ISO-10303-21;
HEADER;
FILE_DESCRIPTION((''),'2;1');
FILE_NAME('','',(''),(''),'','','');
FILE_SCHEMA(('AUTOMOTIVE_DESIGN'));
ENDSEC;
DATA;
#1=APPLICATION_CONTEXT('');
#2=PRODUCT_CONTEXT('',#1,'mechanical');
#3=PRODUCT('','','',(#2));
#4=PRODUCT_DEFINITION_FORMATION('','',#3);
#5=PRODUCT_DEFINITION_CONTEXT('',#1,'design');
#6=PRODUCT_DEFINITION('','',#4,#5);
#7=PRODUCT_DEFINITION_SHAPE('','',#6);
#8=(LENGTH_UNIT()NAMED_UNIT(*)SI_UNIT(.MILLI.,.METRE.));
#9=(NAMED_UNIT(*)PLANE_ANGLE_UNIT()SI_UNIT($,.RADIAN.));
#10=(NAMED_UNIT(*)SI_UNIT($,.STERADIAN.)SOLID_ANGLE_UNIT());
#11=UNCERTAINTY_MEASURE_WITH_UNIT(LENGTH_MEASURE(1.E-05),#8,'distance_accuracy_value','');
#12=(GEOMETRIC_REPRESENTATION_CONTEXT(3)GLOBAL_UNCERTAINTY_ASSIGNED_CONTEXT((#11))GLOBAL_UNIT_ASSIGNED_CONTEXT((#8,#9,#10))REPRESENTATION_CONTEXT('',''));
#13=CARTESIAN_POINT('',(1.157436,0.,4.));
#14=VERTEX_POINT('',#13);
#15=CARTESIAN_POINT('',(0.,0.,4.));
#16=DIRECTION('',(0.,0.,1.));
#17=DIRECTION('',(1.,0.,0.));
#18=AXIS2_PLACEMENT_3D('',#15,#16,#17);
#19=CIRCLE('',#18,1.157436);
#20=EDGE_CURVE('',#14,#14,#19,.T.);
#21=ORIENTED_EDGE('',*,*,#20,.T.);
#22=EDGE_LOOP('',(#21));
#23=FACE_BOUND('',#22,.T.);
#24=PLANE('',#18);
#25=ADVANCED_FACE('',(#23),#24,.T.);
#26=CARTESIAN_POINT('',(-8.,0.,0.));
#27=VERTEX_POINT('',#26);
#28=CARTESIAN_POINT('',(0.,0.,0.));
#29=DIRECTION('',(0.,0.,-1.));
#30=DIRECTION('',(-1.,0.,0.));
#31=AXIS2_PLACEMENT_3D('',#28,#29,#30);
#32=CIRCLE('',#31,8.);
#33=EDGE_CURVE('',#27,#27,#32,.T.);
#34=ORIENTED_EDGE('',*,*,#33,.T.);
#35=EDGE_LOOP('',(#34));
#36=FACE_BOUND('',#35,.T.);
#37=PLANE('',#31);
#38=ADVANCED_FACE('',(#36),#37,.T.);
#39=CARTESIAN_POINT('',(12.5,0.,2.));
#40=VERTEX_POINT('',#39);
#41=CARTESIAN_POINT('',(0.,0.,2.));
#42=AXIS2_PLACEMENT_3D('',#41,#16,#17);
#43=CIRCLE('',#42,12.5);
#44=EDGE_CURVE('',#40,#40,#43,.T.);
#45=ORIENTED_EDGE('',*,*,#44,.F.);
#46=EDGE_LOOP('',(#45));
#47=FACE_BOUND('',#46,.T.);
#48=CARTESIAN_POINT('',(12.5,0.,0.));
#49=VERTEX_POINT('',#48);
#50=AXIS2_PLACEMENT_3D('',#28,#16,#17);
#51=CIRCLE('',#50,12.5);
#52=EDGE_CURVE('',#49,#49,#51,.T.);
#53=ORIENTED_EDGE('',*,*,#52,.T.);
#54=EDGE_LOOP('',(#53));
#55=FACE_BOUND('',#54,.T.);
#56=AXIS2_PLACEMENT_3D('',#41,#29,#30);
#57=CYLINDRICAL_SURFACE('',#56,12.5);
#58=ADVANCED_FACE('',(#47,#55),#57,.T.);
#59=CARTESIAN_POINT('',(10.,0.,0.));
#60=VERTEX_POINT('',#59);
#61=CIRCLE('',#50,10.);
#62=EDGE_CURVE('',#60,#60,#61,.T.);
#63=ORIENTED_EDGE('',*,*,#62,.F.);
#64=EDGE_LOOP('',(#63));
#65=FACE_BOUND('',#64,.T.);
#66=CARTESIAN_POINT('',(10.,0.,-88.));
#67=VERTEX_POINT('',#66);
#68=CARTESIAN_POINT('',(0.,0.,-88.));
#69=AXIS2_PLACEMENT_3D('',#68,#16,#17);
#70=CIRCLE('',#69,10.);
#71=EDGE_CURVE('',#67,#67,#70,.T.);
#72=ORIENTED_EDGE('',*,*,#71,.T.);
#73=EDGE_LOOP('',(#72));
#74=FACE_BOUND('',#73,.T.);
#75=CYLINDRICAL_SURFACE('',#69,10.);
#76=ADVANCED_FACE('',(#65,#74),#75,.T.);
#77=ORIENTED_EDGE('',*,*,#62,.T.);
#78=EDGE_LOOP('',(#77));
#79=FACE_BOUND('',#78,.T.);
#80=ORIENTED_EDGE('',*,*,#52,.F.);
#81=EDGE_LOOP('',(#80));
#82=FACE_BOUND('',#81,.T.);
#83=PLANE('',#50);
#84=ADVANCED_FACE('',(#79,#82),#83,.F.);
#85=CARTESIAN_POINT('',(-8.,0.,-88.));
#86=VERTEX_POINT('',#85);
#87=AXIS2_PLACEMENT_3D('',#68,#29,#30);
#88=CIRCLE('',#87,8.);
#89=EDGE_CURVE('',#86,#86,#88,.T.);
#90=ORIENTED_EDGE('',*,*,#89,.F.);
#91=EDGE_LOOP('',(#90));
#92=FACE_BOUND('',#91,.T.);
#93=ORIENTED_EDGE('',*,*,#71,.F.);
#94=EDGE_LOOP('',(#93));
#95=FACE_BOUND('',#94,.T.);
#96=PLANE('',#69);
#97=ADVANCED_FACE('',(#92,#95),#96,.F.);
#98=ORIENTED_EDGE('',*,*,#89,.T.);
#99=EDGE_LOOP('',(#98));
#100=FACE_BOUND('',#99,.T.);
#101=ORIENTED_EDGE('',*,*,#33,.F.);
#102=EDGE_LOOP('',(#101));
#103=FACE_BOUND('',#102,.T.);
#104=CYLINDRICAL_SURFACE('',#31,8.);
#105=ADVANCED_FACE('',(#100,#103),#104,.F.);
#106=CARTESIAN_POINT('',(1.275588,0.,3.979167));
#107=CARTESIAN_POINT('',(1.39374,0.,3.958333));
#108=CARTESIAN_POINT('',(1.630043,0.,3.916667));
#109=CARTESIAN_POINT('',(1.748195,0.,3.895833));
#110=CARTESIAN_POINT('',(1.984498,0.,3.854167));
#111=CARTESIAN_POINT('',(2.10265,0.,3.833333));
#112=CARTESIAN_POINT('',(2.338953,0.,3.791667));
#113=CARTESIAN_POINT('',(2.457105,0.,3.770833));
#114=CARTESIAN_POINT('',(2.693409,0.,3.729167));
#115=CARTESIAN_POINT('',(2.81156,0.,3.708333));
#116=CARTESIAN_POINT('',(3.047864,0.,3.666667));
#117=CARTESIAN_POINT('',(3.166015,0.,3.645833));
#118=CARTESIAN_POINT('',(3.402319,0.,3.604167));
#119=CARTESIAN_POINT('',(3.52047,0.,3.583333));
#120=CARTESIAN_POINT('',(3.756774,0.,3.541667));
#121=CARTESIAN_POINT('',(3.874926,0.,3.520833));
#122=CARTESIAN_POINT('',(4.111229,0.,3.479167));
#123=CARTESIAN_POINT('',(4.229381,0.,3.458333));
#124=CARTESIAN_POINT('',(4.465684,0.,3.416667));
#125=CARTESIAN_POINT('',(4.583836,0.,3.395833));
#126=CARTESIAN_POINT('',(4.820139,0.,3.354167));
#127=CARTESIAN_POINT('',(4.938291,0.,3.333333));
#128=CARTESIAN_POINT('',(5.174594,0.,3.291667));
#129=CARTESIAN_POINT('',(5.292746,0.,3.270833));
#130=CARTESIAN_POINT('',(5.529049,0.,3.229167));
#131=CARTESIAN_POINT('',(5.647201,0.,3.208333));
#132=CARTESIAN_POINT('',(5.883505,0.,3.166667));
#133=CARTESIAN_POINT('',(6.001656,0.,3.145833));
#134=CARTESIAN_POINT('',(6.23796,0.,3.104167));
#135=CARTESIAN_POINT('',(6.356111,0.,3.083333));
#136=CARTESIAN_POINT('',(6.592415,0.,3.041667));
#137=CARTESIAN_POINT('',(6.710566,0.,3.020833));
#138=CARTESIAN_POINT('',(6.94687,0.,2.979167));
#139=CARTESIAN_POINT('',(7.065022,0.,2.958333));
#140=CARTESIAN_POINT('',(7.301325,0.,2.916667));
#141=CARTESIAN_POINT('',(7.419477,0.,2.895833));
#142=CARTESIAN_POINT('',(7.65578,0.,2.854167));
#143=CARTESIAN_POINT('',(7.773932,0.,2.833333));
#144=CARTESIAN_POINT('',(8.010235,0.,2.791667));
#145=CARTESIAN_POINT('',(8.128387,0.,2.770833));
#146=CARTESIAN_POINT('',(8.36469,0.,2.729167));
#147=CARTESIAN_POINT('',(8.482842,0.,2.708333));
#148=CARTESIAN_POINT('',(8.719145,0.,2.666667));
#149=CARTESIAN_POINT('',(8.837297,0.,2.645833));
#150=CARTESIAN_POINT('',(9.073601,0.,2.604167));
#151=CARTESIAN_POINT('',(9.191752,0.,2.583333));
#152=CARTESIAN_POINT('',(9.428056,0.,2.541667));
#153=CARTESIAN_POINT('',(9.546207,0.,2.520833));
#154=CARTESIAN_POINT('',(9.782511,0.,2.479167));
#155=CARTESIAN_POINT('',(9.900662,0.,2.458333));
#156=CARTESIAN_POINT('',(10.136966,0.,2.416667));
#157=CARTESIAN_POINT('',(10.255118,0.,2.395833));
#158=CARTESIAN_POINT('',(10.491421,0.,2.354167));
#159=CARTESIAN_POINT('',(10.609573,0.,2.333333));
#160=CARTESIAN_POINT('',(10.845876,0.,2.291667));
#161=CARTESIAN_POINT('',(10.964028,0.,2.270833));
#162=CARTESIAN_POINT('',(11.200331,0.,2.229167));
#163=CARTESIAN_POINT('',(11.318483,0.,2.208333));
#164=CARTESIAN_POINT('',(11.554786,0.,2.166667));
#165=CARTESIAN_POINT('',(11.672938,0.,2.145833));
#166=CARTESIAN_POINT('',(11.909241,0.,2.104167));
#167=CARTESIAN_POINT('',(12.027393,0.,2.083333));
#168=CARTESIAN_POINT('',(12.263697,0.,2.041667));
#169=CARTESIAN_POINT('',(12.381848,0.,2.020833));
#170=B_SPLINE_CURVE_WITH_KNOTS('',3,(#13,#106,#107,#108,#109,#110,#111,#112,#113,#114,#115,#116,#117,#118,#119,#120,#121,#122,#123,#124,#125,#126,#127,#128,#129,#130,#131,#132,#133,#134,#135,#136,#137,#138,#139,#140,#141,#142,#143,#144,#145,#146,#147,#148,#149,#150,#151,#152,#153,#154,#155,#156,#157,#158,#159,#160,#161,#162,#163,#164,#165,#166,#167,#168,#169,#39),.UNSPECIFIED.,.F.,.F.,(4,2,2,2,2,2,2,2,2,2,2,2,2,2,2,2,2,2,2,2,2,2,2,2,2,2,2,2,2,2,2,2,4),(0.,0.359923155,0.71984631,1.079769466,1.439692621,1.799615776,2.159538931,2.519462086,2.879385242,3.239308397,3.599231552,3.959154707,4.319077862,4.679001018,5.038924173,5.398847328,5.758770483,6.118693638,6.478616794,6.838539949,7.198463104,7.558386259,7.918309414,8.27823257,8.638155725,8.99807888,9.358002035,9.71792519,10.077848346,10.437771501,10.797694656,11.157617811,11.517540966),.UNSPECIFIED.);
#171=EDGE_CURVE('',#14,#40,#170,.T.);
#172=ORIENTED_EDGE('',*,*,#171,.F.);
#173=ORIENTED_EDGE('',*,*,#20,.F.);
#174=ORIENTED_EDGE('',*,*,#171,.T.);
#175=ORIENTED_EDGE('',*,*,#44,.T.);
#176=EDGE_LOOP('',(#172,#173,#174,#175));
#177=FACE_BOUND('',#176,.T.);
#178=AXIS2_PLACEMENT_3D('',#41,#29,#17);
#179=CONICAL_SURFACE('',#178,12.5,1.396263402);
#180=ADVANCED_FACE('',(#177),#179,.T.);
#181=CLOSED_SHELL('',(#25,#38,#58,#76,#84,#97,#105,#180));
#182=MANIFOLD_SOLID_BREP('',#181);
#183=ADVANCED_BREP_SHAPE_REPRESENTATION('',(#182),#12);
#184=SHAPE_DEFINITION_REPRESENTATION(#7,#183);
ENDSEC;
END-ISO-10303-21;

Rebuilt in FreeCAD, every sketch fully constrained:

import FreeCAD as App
import Part
import Sketcher
Q = App.Units.Quantity

doc = App.newDocument("Part")
params = doc.addObject("Spreadsheet::Sheet", "Params")
for row, (alias, value) in enumerate([
    ("sketch1_diameter", "20 mm"),
    ("pad1_length", "88 mm"),
    ("sketch2_diameter", "25 mm"),
    ("pad2_length", "2 mm"),
    ("sketch3_diameter", "25 mm"),
    ("pad3_length", "2 mm"),
    ("pad3_taper", "-80 deg"),
    ("sketch4_diameter", "16 mm"),
    ("pocket1_length", "88 mm"),
], start=1):
    params.set(f"A{row}", alias)
    params.set(f"B{row}", "=" + value)
    params.setAlias(f"B{row}", alias)

body = doc.addObject("PartDesign::Body", "Body")

# Sketch on XY plane
sketch1 = body.newObject("Sketcher::SketchObject", "Sketch")
sketch1.AttachmentSupport = (doc.getObject("XY_Plane"), [""])
sketch1.MapMode = "FlatFace"
sketch1.addGeometry(Part.Circle(App.Vector(0, 0, 0), App.Vector(0, 0, 1), 10), False)
sketch1.addConstraint([
    Sketcher.Constraint("Coincident", 0, 3, -1, 1),
    Sketcher.Constraint("Diameter", 0, Q("20 mm")),
])
sketch1.setExpression("Constraints[1]", "Params.sketch1_diameter")
pad1 = body.newObject("PartDesign::Pad", "Pad")
pad1.Profile = sketch1
pad1.setExpression("Length", "Params.pad1_length")
pad1.Reversed = True

# Sketch on XY plane
sketch2 = body.newObject("Sketcher::SketchObject", "Sketch001")
sketch2.AttachmentSupport = (doc.getObject("XY_Plane"), [""])
sketch2.MapMode = "FlatFace"
sketch2.addGeometry(Part.Circle(App.Vector(0, 0, 0), App.Vector(0, 0, 1), 12.5), False)
sketch2.addConstraint([
    Sketcher.Constraint("Coincident", 0, 3, -1, 1),
    Sketcher.Constraint("Diameter", 0, Q("25 mm")),
])
sketch2.setExpression("Constraints[1]", "Params.sketch2_diameter")
pad2 = body.newObject("PartDesign::Pad", "Pad001")
pad2.Profile = sketch2
pad2.setExpression("Length", "Params.pad2_length")

# Sketch on XY plane
sketch3 = body.newObject("Sketcher::SketchObject", "Sketch002")
sketch3.AttachmentSupport = (doc.getObject("XY_Plane"), [""])
sketch3.MapMode = "FlatFace"
sketch3.AttachmentOffset = App.Placement(App.Vector(0, 0, 2), App.Rotation())
sketch3.addGeometry(Part.Circle(App.Vector(0, 0, 0), App.Vector(0, 0, 1), 12.5), False)
sketch3.addConstraint([
    Sketcher.Constraint("Coincident", 0, 3, -1, 1),
    Sketcher.Constraint("Diameter", 0, Q("25 mm")),
])
sketch3.setExpression("Constraints[1]", "Params.sketch3_diameter")
pad3 = body.newObject("PartDesign::Pad", "Pad002")
pad3.Profile = sketch3
pad3.setExpression("Length", "Params.pad3_length")
pad3.setExpression("TaperAngle", "Params.pad3_taper")

# Sketch on XY plane
sketch4 = body.newObject("Sketcher::SketchObject", "Sketch003")
sketch4.AttachmentSupport = (doc.getObject("XY_Plane"), [""])
sketch4.MapMode = "FlatFace"
sketch4.AttachmentOffset = App.Placement(App.Vector(0, 0, -88), App.Rotation())
sketch4.addGeometry(Part.Circle(App.Vector(0, 0, 0), App.Vector(0, 0, 1), 8), False)
sketch4.addConstraint([
    Sketcher.Constraint("Coincident", 0, 3, -1, 1),
    Sketcher.Constraint("Diameter", 0, Q("16 mm")),
])
sketch4.setExpression("Constraints[1]", "Params.sketch4_diameter")
pocket1 = body.newObject("PartDesign::Pocket", "Pocket")
pocket1.Profile = sketch4
pocket1.setExpression("Length", "Params.pocket1_length")
pocket1.Reversed = True

doc.recompute()
